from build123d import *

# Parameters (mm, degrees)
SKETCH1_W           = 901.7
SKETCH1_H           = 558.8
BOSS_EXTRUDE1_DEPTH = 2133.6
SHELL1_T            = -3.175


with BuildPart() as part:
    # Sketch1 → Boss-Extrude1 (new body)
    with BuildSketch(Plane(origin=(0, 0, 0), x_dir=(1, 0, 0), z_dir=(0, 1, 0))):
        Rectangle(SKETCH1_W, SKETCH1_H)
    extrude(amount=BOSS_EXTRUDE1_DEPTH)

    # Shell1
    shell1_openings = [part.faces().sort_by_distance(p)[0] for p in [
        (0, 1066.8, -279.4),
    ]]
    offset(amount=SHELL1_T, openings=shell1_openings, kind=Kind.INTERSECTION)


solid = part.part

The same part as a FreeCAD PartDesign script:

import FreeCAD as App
import Part
import Sketcher
Q = App.Units.Quantity


def faces_at(feature, points):
    """Names of the faces that lie closest to the given points."""
    faces = feature.Shape.Faces
    near = lambda p: min(range(len(faces)), key=lambda i: faces[i].distToShape(Part.Vertex(*p))[0])
    return sorted({f"Face{near(p) + 1}" for p in points})

doc = App.newDocument("Part")
body = doc.addObject("PartDesign::Body", "Body")

sketch1 = body.newObject("Sketcher::SketchObject", "Sketch")
sketch1.AttachmentSupport = (doc.getObject("XZ_Plane"), [""])
sketch1.MapMode = "FlatFace"
sketch1.addGeometry(Part.LineSegment(App.Vector(-451, -279, 0), App.Vector(-451, 279, 0)), False)
sketch1.addGeometry(Part.LineSegment(App.Vector(-451, 279, 0), App.Vector(451, 279, 0)), False)
sketch1.addGeometry(Part.LineSegment(App.Vector(451, 279, 0), App.Vector(451, -279, 0)), False)
sketch1.addGeometry(Part.LineSegment(App.Vector(451, -279, 0), App.Vector(-451, -279, 0)), False)
sketch1.addConstraint(Sketcher.Constraint("Coincident", 0, 2, 1, 1))
sketch1.addConstraint(Sketcher.Constraint("Coincident", 1, 2, 2, 1))
sketch1.addConstraint(Sketcher.Constraint("Coincident", 2, 2, 3, 1))
sketch1.addConstraint(Sketcher.Constraint("Coincident", 3, 2, 0, 1))
sketch1.addConstraint(Sketcher.Constraint("Vertical", 0))
sketch1.addConstraint(Sketcher.Constraint("Horizontal", 1))
sketch1.addConstraint(Sketcher.Constraint("Vertical", 2))
sketch1.addConstraint(Sketcher.Constraint("Horizontal", 3))
sketch1.addConstraint(Sketcher.Constraint("Symmetric", 0, 2, 2, 2, -1, 1))
sketch1.addConstraint(Sketcher.Constraint("DistanceY", 0, 1, 0, 2, Q("22 in")))
sketch1.addConstraint(Sketcher.Constraint("DistanceX", 1, 1, 1, 2, Q("35.5 in")))
pad1 = body.newObject("PartDesign::Pad", "Pad")
pad1.Profile = sketch1
pad1.Length = Q("84 in")
pad1.Reversed = True
doc.recompute()

thickness = body.newObject("PartDesign::Thickness", "Thickness")
thickness.Base = (pad1, faces_at(pad1, [(0, 1066.8, -279.4)]))
thickness.Value = Q("0.125 in")
thickness.Reversed = True
thickness.Join = "Intersection"

doc.recompute()
